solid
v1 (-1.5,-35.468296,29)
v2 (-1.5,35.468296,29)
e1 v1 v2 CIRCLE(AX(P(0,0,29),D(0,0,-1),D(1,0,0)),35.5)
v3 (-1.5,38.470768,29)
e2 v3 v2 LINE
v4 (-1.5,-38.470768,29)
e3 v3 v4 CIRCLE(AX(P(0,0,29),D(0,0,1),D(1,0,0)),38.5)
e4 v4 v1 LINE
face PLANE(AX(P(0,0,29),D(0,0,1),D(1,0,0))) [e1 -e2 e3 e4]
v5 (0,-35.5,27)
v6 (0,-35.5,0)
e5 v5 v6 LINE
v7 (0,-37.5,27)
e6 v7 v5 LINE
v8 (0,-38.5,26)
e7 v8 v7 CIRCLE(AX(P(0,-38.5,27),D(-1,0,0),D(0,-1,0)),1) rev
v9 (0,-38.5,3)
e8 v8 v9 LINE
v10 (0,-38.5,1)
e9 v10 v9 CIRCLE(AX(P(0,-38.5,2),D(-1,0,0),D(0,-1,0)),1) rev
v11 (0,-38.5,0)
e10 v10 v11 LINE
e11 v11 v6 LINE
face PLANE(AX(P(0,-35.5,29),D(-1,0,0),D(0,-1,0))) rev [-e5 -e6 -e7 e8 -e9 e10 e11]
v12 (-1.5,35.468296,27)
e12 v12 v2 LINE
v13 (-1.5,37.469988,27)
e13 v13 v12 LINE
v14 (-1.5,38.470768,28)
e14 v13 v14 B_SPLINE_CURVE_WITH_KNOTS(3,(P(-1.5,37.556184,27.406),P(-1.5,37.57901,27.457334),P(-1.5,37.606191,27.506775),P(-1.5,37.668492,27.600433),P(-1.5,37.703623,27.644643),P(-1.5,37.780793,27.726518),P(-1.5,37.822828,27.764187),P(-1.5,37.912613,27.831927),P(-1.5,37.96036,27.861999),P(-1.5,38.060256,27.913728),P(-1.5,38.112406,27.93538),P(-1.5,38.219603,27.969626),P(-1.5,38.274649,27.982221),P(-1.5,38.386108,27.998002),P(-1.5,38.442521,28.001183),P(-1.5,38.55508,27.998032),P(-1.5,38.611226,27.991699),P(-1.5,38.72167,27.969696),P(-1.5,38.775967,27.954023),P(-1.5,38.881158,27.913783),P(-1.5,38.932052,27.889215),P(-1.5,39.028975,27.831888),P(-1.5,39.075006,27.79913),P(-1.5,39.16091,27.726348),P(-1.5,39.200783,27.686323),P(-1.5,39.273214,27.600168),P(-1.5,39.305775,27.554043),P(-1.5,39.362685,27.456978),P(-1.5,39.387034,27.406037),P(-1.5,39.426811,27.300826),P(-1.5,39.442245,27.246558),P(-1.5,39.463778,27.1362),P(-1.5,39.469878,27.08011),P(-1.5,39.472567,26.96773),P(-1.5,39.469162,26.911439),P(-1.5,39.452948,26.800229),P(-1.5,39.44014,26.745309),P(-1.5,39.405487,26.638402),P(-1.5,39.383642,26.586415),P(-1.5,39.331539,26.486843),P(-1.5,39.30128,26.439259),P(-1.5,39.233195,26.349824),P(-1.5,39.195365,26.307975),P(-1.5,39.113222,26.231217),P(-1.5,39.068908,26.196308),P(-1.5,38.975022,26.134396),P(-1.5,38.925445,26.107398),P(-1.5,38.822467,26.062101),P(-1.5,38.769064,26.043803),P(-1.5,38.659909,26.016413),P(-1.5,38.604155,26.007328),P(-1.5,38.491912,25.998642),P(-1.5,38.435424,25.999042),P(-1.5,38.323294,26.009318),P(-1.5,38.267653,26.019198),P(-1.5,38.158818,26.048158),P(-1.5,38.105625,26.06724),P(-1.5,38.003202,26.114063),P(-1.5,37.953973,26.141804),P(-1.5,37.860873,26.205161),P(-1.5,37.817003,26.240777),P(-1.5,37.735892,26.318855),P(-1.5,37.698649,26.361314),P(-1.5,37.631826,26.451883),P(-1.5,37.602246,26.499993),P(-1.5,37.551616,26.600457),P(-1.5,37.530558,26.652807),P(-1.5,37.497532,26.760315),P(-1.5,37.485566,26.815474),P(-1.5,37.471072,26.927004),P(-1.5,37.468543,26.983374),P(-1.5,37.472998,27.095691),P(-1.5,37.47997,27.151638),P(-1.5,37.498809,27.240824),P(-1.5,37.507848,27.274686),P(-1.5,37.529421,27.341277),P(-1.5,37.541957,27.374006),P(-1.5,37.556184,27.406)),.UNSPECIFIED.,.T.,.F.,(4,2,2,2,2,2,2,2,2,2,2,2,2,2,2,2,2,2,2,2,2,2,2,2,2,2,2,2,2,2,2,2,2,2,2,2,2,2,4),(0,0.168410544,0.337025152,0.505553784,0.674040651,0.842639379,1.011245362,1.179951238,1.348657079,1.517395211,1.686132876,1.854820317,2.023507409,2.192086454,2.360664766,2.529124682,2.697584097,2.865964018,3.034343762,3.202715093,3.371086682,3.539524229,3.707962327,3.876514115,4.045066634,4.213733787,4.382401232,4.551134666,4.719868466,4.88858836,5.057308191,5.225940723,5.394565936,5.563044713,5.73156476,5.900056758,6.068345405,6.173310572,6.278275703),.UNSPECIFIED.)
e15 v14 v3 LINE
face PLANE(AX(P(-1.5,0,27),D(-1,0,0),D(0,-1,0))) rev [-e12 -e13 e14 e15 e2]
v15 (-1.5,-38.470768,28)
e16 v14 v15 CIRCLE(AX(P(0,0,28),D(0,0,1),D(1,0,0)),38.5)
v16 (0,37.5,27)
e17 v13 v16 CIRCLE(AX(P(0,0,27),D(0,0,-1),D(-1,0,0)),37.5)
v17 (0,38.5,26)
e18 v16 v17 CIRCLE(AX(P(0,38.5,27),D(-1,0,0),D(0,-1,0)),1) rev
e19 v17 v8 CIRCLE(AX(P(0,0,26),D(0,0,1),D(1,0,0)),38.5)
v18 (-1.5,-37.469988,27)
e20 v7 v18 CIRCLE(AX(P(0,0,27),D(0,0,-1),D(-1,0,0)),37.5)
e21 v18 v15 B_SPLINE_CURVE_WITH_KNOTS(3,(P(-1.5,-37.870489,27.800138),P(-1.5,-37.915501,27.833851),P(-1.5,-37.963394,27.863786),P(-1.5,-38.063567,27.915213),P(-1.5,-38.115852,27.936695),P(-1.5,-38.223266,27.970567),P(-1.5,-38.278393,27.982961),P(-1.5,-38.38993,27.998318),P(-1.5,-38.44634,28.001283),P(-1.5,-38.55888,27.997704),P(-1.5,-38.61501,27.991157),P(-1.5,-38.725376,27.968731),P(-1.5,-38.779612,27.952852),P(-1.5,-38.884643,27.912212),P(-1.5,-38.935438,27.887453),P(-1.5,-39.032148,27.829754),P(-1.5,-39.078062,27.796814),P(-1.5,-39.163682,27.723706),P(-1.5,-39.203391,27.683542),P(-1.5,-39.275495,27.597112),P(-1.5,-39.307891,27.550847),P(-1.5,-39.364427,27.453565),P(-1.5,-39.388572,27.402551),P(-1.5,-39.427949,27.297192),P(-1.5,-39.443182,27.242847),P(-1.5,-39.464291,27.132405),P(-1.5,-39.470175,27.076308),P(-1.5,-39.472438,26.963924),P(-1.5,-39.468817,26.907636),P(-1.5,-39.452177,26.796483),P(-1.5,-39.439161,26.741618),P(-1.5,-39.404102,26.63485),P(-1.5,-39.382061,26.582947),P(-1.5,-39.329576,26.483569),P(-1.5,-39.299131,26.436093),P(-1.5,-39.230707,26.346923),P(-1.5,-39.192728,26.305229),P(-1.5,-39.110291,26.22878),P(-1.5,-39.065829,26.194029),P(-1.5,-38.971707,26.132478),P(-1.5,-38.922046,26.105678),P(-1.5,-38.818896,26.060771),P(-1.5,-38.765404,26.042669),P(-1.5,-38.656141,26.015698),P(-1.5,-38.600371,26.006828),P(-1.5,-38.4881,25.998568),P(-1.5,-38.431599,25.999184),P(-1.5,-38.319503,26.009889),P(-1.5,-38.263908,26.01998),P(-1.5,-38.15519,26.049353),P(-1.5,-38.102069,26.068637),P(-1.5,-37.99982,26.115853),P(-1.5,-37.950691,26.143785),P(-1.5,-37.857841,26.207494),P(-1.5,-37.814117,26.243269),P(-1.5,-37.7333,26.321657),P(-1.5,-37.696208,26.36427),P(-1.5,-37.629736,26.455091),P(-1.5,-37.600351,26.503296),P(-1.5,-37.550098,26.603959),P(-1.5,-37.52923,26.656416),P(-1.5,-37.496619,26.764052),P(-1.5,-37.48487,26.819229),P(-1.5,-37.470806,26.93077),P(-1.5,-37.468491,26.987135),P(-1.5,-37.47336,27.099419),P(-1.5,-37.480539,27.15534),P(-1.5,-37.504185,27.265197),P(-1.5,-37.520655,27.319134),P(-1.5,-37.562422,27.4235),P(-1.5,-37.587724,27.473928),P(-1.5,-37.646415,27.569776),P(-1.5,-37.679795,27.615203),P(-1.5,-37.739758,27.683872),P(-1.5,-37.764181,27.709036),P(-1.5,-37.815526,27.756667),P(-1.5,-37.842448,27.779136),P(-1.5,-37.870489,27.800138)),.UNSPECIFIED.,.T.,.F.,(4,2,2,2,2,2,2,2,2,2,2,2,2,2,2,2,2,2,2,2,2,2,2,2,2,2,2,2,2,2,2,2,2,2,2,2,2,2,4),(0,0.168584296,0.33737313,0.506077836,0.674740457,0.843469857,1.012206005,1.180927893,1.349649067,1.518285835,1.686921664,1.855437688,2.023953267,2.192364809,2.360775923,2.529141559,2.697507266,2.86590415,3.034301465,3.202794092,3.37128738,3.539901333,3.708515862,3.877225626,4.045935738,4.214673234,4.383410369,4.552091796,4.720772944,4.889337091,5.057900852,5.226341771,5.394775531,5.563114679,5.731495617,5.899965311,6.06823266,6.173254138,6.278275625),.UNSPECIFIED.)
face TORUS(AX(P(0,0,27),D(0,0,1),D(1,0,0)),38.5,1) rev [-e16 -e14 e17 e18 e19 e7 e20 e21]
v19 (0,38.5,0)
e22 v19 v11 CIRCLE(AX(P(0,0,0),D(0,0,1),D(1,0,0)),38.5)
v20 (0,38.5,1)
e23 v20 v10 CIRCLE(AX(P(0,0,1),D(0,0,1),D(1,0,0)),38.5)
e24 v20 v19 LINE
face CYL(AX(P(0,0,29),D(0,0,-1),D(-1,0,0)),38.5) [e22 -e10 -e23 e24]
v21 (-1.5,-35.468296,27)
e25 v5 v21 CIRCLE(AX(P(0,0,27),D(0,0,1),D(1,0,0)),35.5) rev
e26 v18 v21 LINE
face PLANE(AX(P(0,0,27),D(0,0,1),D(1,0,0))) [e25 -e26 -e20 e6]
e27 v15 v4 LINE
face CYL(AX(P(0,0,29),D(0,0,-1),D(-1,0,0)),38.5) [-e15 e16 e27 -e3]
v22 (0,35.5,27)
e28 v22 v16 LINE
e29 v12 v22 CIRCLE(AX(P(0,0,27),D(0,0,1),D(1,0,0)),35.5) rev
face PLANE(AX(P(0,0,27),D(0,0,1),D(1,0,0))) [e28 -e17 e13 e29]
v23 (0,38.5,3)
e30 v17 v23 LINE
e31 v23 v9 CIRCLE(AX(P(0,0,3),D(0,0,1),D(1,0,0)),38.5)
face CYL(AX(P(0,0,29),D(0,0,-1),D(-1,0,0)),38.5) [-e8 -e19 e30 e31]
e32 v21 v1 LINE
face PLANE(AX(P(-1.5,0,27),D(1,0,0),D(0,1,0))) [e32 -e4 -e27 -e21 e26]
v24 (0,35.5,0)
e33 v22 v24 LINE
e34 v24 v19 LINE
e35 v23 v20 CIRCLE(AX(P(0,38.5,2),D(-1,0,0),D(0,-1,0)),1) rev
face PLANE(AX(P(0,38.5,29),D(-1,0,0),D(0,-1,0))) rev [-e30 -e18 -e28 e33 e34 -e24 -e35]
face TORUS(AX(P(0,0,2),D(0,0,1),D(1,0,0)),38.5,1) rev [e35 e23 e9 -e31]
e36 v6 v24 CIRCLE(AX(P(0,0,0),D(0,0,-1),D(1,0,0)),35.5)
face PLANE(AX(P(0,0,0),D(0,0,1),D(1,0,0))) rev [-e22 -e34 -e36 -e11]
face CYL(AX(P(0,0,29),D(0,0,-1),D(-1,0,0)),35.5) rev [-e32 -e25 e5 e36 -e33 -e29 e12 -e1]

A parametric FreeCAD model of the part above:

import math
import FreeCAD as App
import Part
import Sketcher
from FreeCAD import Vector

doc = App.newDocument("Part")
body = doc.addObject("PartDesign::Body", "Body")

# Sketch on XY plane
sketch1 = doc.addObject("Sketcher::SketchObject", "Sketch")
body.addObject(sketch1)
sketch1.AttachmentSupport = (doc.XY_Plane, [""])
sketch1.MapMode = "FlatFace"
sketch1.addGeometry(Part.LineSegment(Vector(0, 35.5, 0), Vector(0, 38.5, 0)), False)
sketch1.addGeometry(Part.ArcOfCircle(Part.Circle(Vector(0, 0, 0), Vector(0, 0, 1), 38.5), math.radians(90), math.radians(270)), False)
sketch1.addGeometry(Part.LineSegment(Vector(0, -38.5, 0), Vector(0, -35.5, 0)), False)
sketch1.addGeometry(Part.ArcOfCircle(Part.Circle(Vector(0, 0, 0), Vector(0, 0, 1), 35.5), math.radians(90), math.radians(270)), False)
sketch1.addConstraint(Sketcher.Constraint("Coincident", 0, 2, 1, 1))
sketch1.addConstraint(Sketcher.Constraint("Coincident", 1, 2, 2, 1))
sketch1.addConstraint(Sketcher.Constraint("Coincident", 2, 2, 3, 2))
sketch1.addConstraint(Sketcher.Constraint("Coincident", 3, 1, 0, 1))
sketch1.addConstraint(Sketcher.Constraint("Vertical", 0))
sketch1.addConstraint(Sketcher.Constraint("Vertical", 2))
sketch1.addConstraint(Sketcher.Constraint("Coincident", 1, 3, -1, 1))
sketch1.addConstraint(Sketcher.Constraint("Coincident", 3, 3, -1, 1))
sketch1.addConstraint(Sketcher.Constraint("PointOnObject", 0, 2, -2))
sketch1.addConstraint(Sketcher.Constraint("PointOnObject", 1, 2, -2))
sketch1.addConstraint(Sketcher.Constraint("Radius", 1, 38.5))
sketch1.addConstraint(Sketcher.Constraint("Radius", 3, 35.5))
pad1 = doc.addObject("PartDesign::Pad", "Pad")
body.addObject(pad1)
pad1.Profile = sketch1
pad1.Length = 29

# Sketch on YZ plane
sketch2 = doc.addObject("Sketcher::SketchObject", "Sketch001")
body.addObject(sketch2)
sketch2.AttachmentSupport = (doc.YZ_Plane, [""])
sketch2.MapMode = "FlatFace"
sketch2.addGeometry(Part.LineSegment(Vector(38.5, 26, 0), Vector(38.5, 28, 0)), False)
sketch2.addGeometry(Part.ArcOfCircle(Part.Circle(Vector(38.5, 27, 0), Vector(0, 0, 1), 1), math.radians(90), math.radians(270)), False)
sketch2.addGeometry(Part.LineSegment(Vector(38.5, 1, 0), Vector(38.5, 3, 0)), False)
sketch2.addGeometry(Part.ArcOfCircle(Part.Circle(Vector(38.5, 2, 0), Vector(0, 0, 1), 1), math.radians(90), math.radians(270)), False)
sketch2.addConstraint(Sketcher.Constraint("Coincident", 0, 1, 1, 2))
sketch2.addConstraint(Sketcher.Constraint("Coincident", 1, 1, 0, 2))
sketch2.addConstraint(Sketcher.Constraint("Coincident", 2, 1, 3, 2))
sketch2.addConstraint(Sketcher.Constraint("Coincident", 3, 1, 2, 2))
sketch2.addConstraint(Sketcher.Constraint("Vertical", 0))
sketch2.addConstraint(Sketcher.Constraint("Vertical", 2))
sketch2.addConstraint(Sketcher.Constraint("Equal", 1, 3))
sketch2.addConstraint(Sketcher.Constraint("Vertical", 1, 3, 3, 3))
sketch2.addConstraint(Sketcher.Constraint("Vertical", 3, 3, 0, 1))
sketch2.addConstraint(Sketcher.Constraint("Vertical", 1, 1, 2, 1))
sketch2.addConstraint(Sketcher.Constraint("Radius", 1, 1.0))
sketch2.addConstraint(Sketcher.Constraint("DistanceY", -1, 1, 1, 3, 27.0))
sketch2.addConstraint(Sketcher.Constraint("DistanceY", -1, 1, 3, 3, 2.0))
sketch2.addConstraint(Sketcher.Constraint("DistanceX", -1, 1, 1, 3, 38.5))
groove = doc.addObject("PartDesign::Groove", "Groove")
body.addObject(groove)
groove.Profile = sketch2
groove.ReferenceAxis = (sketch2, ["V_Axis"])
groove.Angle = 360

# Sketch on XY plane
sketch3 = doc.addObject("Sketcher::SketchObject", "Sketch002")
body.addObject(sketch3)
sketch3.AttachmentSupport = (doc.XY_Plane, [""])
sketch3.MapMode = "FlatFace"
sketch3.AttachmentOffset = App.Placement(Vector(0, 0, 29), App.Rotation())
sketch3.addGeometry(Part.LineSegment(Vector(0, 35.5, 0), Vector(0, 38.5, 0)), False)
sketch3.addGeometry(Part.ArcOfCircle(Part.Circle(Vector(0, 0, 0), Vector(0, 0, 1), 38.5), math.radians(90), math.radians(92.23)), False)
sketch3.addGeometry(Part.LineSegment(Vector(-1.5, 38.5, 0), Vector(-1.5, 35.5, 0)), False)
sketch3.addGeometry(Part.ArcOfCircle(Part.Circle(Vector(0, 0, 0), Vector(0, 0, 1), 35.5), math.radians(90), math.radians(92.42)), False)
sketch3.addGeometry(Part.LineSegment(Vector(-1.5, -35.5, 0), Vector(-1.5, -38.5, 0)), False)
sketch3.addGeometry(Part.ArcOfCircle(Part.Circle(Vector(0, 0, 0), Vector(0, 0, 1), 38.5), math.radians(-92.23), math.radians(-90)), False)
sketch3.addGeometry(Part.LineSegment(Vector(0, -38.5, 0), Vector(0, -35.5, 0)), False)
sketch3.addGeometry(Part.ArcOfCircle(Part.Circle(Vector(0, 0, 0), Vector(0, 0, 1), 35.5), math.radians(-92.42), math.radians(-90)), False)
sketch3.addConstraint(Sketcher.Constraint("Coincident", 0, 2, 1, 1))
sketch3.addConstraint(Sketcher.Constraint("Coincident", 1, 2, 2, 1))
sketch3.addConstraint(Sketcher.Constraint("Coincident", 2, 2, 3, 2))
sketch3.addConstraint(Sketcher.Constraint("Coincident", 3, 1, 0, 1))
sketch3.addConstraint(Sketcher.Constraint("Coincident", 4, 2, 5, 1))
sketch3.addConstraint(Sketcher.Constraint("Coincident", 5, 2, 6, 1))
sketch3.addConstraint(Sketcher.Constraint("Coincident", 6, 2, 7, 2))
sketch3.addConstraint(Sketcher.Constraint("Coincident", 7, 1, 4, 1))
sketch3.addConstraint(Sketcher.Constraint("Vertical", 0))
sketch3.addConstraint(Sketcher.Constraint("Vertical", 2))
sketch3.addConstraint(Sketcher.Constraint("Vertical", 4))
sketch3.addConstraint(Sketcher.Constraint("Vertical", 6))
sketch3.addConstraint(Sketcher.Constraint("Coincident", 1, 3, -1, 1))
sketch3.addConstraint(Sketcher.Constraint("Coincident", 3, 3, -1, 1))
sketch3.addConstraint(Sketcher.Constraint("Coincident", 5, 3, -1, 1))
sketch3.addConstraint(Sketcher.Constraint("Coincident", 7, 3, -1, 1))
sketch3.addConstraint(Sketcher.Constraint("Equal", 1, 5))
sketch3.addConstraint(Sketcher.Constraint("Equal", 3, 7))
sketch3.addConstraint(Sketcher.Constraint("PointOnObject", 0, 2, -2))
sketch3.addConstraint(Sketcher.Constraint("PointOnObject", 5, 2, -2))
sketch3.addConstraint(Sketcher.Constraint("Vertical", 2, 2, 4, 2))
sketch3.addConstraint(Sketcher.Constraint("Radius", 1, 38.5))
sketch3.addConstraint(Sketcher.Constraint("DistanceY", 0, 1, 0, 2, 3.0))
sketch3.addConstraint(Sketcher.Constraint("DistanceX", 1, 2, -1, 1, 1.5))
pocket1 = doc.addObject("PartDesign::Pocket", "Pocket")
body.addObject(pocket1)
pocket1.Profile = sketch3
pocket1.Length = 2

doc.recompute()
